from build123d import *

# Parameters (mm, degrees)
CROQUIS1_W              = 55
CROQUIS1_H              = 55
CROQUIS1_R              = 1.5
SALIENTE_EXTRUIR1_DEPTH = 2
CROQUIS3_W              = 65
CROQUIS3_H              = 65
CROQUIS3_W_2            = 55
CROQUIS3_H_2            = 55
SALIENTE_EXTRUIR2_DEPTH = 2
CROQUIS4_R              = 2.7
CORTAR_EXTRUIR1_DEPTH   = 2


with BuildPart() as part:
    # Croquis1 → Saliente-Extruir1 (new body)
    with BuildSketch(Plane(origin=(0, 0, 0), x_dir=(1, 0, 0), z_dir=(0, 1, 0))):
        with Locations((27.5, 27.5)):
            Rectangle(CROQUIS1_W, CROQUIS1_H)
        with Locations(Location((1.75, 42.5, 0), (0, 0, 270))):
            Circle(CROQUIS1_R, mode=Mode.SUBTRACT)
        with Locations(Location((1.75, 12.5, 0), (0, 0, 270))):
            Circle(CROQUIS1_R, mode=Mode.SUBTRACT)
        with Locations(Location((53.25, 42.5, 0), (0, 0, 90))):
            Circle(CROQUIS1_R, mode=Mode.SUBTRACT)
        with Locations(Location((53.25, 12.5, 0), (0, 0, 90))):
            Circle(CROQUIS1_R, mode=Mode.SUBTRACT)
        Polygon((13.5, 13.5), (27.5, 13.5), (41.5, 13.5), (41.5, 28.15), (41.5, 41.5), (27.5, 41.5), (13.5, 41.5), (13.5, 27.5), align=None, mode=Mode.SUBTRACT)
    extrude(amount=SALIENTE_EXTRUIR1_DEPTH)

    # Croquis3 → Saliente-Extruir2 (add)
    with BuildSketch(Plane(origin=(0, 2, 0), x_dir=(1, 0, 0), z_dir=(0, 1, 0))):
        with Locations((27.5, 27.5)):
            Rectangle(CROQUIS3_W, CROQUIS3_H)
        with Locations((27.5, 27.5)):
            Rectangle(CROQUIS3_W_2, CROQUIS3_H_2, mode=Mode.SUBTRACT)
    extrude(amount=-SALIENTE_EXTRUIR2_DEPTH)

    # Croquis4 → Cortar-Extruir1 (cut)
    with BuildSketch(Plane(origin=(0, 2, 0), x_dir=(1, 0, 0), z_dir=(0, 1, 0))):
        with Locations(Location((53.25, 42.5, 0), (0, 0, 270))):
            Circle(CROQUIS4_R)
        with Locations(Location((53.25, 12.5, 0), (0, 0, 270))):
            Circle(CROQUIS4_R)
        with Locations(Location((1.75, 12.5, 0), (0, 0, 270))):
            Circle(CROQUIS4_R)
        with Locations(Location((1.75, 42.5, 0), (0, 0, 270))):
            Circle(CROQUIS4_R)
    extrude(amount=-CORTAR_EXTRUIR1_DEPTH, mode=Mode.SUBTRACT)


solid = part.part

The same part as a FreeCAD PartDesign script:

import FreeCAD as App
import Part
import Sketcher

V = App.Vector
Q = App.Units.Quantity

doc = App.newDocument("Part")
params = doc.addObject("Spreadsheet::Sheet", "Params")
for row, (alias, value) in enumerate([
    ("sketch1_diameter", "3 mm"),
    ("sketch1_width", "55 mm"),
    ("sketch1_width2", "28 mm"),
    ("pad1_length", "2 mm"),
    ("sketch2_width", "65 mm"),
    ("sketch2_width2", "55 mm"),
    ("pad2_length", "2 mm"),
    ("sketch3_diameter", "5.4 mm"),
    ("pocket1_length", "2 mm"),
], start=1):
    params.set(f"A{row}", alias)
    params.set(f"B{row}", "=" + value)
    params.setAlias(f"B{row}", alias)

body = doc.addObject("PartDesign::Body", "Body")

# Sketch on XZ plane
sketch1 = body.newObject("Sketcher::SketchObject", "Sketch")
sketch1.AttachmentSupport = (doc.getObject("XZ_Plane"), [""])
sketch1.MapMode = "FlatFace"
sketch1.addGeometry([
    Part.LineSegment(V(0, -55, 0), V(0, 0, 0)),  # 0
    Part.LineSegment(V(0, 0, 0), V(55, 0, 0)),  # 1
    Part.LineSegment(V(55, 0, 0), V(55, -55, 0)),  # 2
    Part.LineSegment(V(55, -55, 0), V(0, -55, 0)),  # 3
    Part.Circle(V(1.8, -12.5, 0), V(0, 0, 1), 1.5),  # 4
    Part.Circle(V(53.2, -12.5, 0), V(0, 0, 1), 1.5),  # 5
    Part.Circle(V(1.8, -42.5, 0), V(0, 0, 1), 1.5),  # 6
    Part.LineSegment(V(41.5, -13.5, 0), V(13.5, -13.5, 0)),  # 7
    Part.LineSegment(V(13.5, -13.5, 0), V(13.5, -41.5, 0)),  # 8
    Part.LineSegment(V(13.5, -41.5, 0), V(41.5, -41.5, 0)),  # 9
    Part.LineSegment(V(41.5, -41.5, 0), V(41.5, -13.5, 0)),  # 10
    Part.Circle(V(53.2, -42.5, 0), V(0, 0, 1), 1.5),  # 11
], False)
sketch1.addConstraint([
    Sketcher.Constraint("Coincident", 0, 2, 1, 1),
    Sketcher.Constraint("Coincident", 1, 2, 2, 1),
    Sketcher.Constraint("Coincident", 2, 2, 3, 1),
    Sketcher.Constraint("Coincident", 3, 2, 0, 1),
    Sketcher.Constraint("Coincident", 7, 2, 8, 1),
    Sketcher.Constraint("Coincident", 8, 2, 9, 1),
    Sketcher.Constraint("Coincident", 9, 2, 10, 1),
    Sketcher.Constraint("Coincident", 10, 2, 7, 1),
    Sketcher.Constraint("Vertical", 0),
    Sketcher.Constraint("Horizontal", 1),
    Sketcher.Constraint("Vertical", 2),
    Sketcher.Constraint("Horizontal", 3),
    Sketcher.Constraint("Horizontal", 7),
    Sketcher.Constraint("Vertical", 8),
    Sketcher.Constraint("Horizontal", 9),
    Sketcher.Constraint("Vertical", 10),
    Sketcher.Constraint("Coincident", 0, 2, -1, 1),
    Sketcher.Constraint("Equal", 4, 5),
    Sketcher.Constraint("Equal", 5, 6),
    Sketcher.Constraint("Equal", 6, 11),
    Sketcher.Constraint("Horizontal", 4, 3, 5, 3),
    Sketcher.Constraint("Horizontal", 6, 3, 11, 3),
    Sketcher.Constraint("Vertical", 4, 3, 6, 3),
    Sketcher.Constraint("Vertical", 5, 3, 11, 3),
    Sketcher.Constraint("Equal", 3, 0),
    Sketcher.Constraint("Equal", 9, 8),
    Sketcher.Constraint("Diameter", 4, Q("3 mm")),
    Sketcher.Constraint("DistanceX", 1, 1, 1, 2, Q("55 mm")),
    Sketcher.Constraint("DistanceX", 7, 2, 7, 1, Q("28 mm")),
    Sketcher.Constraint("DistanceY", 6, 3, 4, 3, Q("30 mm")),
    Sketcher.Constraint("DistanceY", 7, 2, 4, 3, Q("1 mm")),
    Sketcher.Constraint("DistanceY", 4, 3, -1, 1, Q("12.5 mm")),
    Sketcher.Constraint("DistanceX", -1, 1, 7, 2, Q("13.5 mm")),
    Sketcher.Constraint("DistanceX", 4, 3, 5, 3, Q("51.5 mm")),
    Sketcher.Constraint("DistanceX", -1, 1, 4, 3, Q("1.75 mm")),
])
sketch1.setExpression("Constraints[26]", "Params.sketch1_diameter")
sketch1.setExpression("Constraints[27]", "Params.sketch1_width")
sketch1.setExpression("Constraints[28]", "Params.sketch1_width2")
pad1 = body.newObject("PartDesign::Pad", "Pad")
pad1.Profile = sketch1
pad1.setExpression("Length", "Params.pad1_length")
pad1.Reversed = True

# Sketch on XZ plane
sketch2 = body.newObject("Sketcher::SketchObject", "Sketch001")
sketch2.AttachmentSupport = (doc.getObject("XZ_Plane"), [""])
sketch2.MapMode = "FlatFace"
sketch2.AttachmentOffset = App.Placement(V(0, 0, -2), App.Rotation())
sketch2.addGeometry([
    Part.LineSegment(V(-5, -60, 0), V(-5, 5, 0)),  # 0
    Part.LineSegment(V(-5, 5, 0), V(60, 5, 0)),  # 1
    Part.LineSegment(V(60, 5, 0), V(60, -60, 0)),  # 2
    Part.LineSegment(V(60, -60, 0), V(-5, -60, 0)),  # 3
    Part.LineSegment(V(55, 0, 0), V(0, 0, 0)),  # 4
    Part.LineSegment(V(0, 0, 0), V(0, -55, 0)),  # 5
    Part.LineSegment(V(0, -55, 0), V(55, -55, 0)),  # 6
    Part.LineSegment(V(55, -55, 0), V(55, 0, 0)),  # 7
], False)
sketch2.addConstraint([
    Sketcher.Constraint("Coincident", 0, 2, 1, 1),
    Sketcher.Constraint("Coincident", 1, 2, 2, 1),
    Sketcher.Constraint("Coincident", 2, 2, 3, 1),
    Sketcher.Constraint("Coincident", 3, 2, 0, 1),
    Sketcher.Constraint("Coincident", 4, 2, 5, 1),
    Sketcher.Constraint("Coincident", 5, 2, 6, 1),
    Sketcher.Constraint("Coincident", 6, 2, 7, 1),
    Sketcher.Constraint("Coincident", 7, 2, 4, 1),
    Sketcher.Constraint("Vertical", 0),
    Sketcher.Constraint("Horizontal", 1),
    Sketcher.Constraint("Vertical", 2),
    Sketcher.Constraint("Horizontal", 3),
    Sketcher.Constraint("Horizontal", 4),
    Sketcher.Constraint("Vertical", 5),
    Sketcher.Constraint("Horizontal", 6),
    Sketcher.Constraint("Vertical", 7),
    Sketcher.Constraint("Coincident", 4, 2, -1, 1),
    Sketcher.Constraint("Equal", 3, 0),
    Sketcher.Constraint("Equal", 6, 5),
    Sketcher.Constraint("DistanceX", 1, 1, 1, 2, Q("65 mm")),
    Sketcher.Constraint("DistanceX", 4, 2, 4, 1, Q("55 mm")),
    Sketcher.Constraint("DistanceX", 0, 2, -1, 1, Q("5 mm")),
    Sketcher.Constraint("DistanceY", -1, 1, 0, 2, Q("5 mm")),
])
sketch2.setExpression("Constraints[19]", "Params.sketch2_width")
sketch2.setExpression("Constraints[20]", "Params.sketch2_width2")
pad2 = body.newObject("PartDesign::Pad", "Pad001")
pad2.Profile = sketch2
pad2.setExpression("Length", "Params.pad2_length")

# Sketch on XZ plane
sketch3 = body.newObject("Sketcher::SketchObject", "Sketch002")
sketch3.AttachmentSupport = (doc.getObject("XZ_Plane"), [""])
sketch3.MapMode = "FlatFace"
sketch3.AttachmentOffset = App.Placement(V(0, 0, -2), App.Rotation())
sketch3.addGeometry([
    Part.Circle(V(53.2, -42.5, 0), V(0, 0, 1), 2.7),
    Part.Circle(V(53.2, -12.5, 0), V(0, 0, 1), 2.7),
    Part.Circle(V(1.8, -12.5, 0), V(0, 0, 1), 2.7),
    Part.Circle(V(1.8, -42.5, 0), V(0, 0, 1), 2.7),
], False)
sketch3.addConstraint([
    Sketcher.Constraint("Equal", 0, 1),
    Sketcher.Constraint("Equal", 1, 2),
    Sketcher.Constraint("Equal", 2, 3),
    Sketcher.Constraint("Horizontal", 1, 3, 2, 3),
    Sketcher.Constraint("Horizontal", 0, 3, 3, 3),
    Sketcher.Constraint("Vertical", 0, 3, 1, 3),
    Sketcher.Constraint("Vertical", 2, 3, 3, 3),
    Sketcher.Constraint("Diameter", 0, Q("5.4 mm")),
    Sketcher.Constraint("DistanceY", 0, 3, 1, 3, Q("30 mm")),
    Sketcher.Constraint("DistanceY", 0, 3, -1, 1, Q("42.5 mm")),
    Sketcher.Constraint("DistanceX", 2, 3, 1, 3, Q("51.5 mm")),
    Sketcher.Constraint("DistanceX", -1, 1, 0, 3, Q("53.25 mm")),
])
sketch3.setExpression("Constraints[7]", "Params.sketch3_diameter")
pocket1 = body.newObject("PartDesign::Pocket", "Pocket")
pocket1.Profile = sketch3
pocket1.setExpression("Length", "Params.pocket1_length")
pocket1.Reversed = True

doc.recompute()
